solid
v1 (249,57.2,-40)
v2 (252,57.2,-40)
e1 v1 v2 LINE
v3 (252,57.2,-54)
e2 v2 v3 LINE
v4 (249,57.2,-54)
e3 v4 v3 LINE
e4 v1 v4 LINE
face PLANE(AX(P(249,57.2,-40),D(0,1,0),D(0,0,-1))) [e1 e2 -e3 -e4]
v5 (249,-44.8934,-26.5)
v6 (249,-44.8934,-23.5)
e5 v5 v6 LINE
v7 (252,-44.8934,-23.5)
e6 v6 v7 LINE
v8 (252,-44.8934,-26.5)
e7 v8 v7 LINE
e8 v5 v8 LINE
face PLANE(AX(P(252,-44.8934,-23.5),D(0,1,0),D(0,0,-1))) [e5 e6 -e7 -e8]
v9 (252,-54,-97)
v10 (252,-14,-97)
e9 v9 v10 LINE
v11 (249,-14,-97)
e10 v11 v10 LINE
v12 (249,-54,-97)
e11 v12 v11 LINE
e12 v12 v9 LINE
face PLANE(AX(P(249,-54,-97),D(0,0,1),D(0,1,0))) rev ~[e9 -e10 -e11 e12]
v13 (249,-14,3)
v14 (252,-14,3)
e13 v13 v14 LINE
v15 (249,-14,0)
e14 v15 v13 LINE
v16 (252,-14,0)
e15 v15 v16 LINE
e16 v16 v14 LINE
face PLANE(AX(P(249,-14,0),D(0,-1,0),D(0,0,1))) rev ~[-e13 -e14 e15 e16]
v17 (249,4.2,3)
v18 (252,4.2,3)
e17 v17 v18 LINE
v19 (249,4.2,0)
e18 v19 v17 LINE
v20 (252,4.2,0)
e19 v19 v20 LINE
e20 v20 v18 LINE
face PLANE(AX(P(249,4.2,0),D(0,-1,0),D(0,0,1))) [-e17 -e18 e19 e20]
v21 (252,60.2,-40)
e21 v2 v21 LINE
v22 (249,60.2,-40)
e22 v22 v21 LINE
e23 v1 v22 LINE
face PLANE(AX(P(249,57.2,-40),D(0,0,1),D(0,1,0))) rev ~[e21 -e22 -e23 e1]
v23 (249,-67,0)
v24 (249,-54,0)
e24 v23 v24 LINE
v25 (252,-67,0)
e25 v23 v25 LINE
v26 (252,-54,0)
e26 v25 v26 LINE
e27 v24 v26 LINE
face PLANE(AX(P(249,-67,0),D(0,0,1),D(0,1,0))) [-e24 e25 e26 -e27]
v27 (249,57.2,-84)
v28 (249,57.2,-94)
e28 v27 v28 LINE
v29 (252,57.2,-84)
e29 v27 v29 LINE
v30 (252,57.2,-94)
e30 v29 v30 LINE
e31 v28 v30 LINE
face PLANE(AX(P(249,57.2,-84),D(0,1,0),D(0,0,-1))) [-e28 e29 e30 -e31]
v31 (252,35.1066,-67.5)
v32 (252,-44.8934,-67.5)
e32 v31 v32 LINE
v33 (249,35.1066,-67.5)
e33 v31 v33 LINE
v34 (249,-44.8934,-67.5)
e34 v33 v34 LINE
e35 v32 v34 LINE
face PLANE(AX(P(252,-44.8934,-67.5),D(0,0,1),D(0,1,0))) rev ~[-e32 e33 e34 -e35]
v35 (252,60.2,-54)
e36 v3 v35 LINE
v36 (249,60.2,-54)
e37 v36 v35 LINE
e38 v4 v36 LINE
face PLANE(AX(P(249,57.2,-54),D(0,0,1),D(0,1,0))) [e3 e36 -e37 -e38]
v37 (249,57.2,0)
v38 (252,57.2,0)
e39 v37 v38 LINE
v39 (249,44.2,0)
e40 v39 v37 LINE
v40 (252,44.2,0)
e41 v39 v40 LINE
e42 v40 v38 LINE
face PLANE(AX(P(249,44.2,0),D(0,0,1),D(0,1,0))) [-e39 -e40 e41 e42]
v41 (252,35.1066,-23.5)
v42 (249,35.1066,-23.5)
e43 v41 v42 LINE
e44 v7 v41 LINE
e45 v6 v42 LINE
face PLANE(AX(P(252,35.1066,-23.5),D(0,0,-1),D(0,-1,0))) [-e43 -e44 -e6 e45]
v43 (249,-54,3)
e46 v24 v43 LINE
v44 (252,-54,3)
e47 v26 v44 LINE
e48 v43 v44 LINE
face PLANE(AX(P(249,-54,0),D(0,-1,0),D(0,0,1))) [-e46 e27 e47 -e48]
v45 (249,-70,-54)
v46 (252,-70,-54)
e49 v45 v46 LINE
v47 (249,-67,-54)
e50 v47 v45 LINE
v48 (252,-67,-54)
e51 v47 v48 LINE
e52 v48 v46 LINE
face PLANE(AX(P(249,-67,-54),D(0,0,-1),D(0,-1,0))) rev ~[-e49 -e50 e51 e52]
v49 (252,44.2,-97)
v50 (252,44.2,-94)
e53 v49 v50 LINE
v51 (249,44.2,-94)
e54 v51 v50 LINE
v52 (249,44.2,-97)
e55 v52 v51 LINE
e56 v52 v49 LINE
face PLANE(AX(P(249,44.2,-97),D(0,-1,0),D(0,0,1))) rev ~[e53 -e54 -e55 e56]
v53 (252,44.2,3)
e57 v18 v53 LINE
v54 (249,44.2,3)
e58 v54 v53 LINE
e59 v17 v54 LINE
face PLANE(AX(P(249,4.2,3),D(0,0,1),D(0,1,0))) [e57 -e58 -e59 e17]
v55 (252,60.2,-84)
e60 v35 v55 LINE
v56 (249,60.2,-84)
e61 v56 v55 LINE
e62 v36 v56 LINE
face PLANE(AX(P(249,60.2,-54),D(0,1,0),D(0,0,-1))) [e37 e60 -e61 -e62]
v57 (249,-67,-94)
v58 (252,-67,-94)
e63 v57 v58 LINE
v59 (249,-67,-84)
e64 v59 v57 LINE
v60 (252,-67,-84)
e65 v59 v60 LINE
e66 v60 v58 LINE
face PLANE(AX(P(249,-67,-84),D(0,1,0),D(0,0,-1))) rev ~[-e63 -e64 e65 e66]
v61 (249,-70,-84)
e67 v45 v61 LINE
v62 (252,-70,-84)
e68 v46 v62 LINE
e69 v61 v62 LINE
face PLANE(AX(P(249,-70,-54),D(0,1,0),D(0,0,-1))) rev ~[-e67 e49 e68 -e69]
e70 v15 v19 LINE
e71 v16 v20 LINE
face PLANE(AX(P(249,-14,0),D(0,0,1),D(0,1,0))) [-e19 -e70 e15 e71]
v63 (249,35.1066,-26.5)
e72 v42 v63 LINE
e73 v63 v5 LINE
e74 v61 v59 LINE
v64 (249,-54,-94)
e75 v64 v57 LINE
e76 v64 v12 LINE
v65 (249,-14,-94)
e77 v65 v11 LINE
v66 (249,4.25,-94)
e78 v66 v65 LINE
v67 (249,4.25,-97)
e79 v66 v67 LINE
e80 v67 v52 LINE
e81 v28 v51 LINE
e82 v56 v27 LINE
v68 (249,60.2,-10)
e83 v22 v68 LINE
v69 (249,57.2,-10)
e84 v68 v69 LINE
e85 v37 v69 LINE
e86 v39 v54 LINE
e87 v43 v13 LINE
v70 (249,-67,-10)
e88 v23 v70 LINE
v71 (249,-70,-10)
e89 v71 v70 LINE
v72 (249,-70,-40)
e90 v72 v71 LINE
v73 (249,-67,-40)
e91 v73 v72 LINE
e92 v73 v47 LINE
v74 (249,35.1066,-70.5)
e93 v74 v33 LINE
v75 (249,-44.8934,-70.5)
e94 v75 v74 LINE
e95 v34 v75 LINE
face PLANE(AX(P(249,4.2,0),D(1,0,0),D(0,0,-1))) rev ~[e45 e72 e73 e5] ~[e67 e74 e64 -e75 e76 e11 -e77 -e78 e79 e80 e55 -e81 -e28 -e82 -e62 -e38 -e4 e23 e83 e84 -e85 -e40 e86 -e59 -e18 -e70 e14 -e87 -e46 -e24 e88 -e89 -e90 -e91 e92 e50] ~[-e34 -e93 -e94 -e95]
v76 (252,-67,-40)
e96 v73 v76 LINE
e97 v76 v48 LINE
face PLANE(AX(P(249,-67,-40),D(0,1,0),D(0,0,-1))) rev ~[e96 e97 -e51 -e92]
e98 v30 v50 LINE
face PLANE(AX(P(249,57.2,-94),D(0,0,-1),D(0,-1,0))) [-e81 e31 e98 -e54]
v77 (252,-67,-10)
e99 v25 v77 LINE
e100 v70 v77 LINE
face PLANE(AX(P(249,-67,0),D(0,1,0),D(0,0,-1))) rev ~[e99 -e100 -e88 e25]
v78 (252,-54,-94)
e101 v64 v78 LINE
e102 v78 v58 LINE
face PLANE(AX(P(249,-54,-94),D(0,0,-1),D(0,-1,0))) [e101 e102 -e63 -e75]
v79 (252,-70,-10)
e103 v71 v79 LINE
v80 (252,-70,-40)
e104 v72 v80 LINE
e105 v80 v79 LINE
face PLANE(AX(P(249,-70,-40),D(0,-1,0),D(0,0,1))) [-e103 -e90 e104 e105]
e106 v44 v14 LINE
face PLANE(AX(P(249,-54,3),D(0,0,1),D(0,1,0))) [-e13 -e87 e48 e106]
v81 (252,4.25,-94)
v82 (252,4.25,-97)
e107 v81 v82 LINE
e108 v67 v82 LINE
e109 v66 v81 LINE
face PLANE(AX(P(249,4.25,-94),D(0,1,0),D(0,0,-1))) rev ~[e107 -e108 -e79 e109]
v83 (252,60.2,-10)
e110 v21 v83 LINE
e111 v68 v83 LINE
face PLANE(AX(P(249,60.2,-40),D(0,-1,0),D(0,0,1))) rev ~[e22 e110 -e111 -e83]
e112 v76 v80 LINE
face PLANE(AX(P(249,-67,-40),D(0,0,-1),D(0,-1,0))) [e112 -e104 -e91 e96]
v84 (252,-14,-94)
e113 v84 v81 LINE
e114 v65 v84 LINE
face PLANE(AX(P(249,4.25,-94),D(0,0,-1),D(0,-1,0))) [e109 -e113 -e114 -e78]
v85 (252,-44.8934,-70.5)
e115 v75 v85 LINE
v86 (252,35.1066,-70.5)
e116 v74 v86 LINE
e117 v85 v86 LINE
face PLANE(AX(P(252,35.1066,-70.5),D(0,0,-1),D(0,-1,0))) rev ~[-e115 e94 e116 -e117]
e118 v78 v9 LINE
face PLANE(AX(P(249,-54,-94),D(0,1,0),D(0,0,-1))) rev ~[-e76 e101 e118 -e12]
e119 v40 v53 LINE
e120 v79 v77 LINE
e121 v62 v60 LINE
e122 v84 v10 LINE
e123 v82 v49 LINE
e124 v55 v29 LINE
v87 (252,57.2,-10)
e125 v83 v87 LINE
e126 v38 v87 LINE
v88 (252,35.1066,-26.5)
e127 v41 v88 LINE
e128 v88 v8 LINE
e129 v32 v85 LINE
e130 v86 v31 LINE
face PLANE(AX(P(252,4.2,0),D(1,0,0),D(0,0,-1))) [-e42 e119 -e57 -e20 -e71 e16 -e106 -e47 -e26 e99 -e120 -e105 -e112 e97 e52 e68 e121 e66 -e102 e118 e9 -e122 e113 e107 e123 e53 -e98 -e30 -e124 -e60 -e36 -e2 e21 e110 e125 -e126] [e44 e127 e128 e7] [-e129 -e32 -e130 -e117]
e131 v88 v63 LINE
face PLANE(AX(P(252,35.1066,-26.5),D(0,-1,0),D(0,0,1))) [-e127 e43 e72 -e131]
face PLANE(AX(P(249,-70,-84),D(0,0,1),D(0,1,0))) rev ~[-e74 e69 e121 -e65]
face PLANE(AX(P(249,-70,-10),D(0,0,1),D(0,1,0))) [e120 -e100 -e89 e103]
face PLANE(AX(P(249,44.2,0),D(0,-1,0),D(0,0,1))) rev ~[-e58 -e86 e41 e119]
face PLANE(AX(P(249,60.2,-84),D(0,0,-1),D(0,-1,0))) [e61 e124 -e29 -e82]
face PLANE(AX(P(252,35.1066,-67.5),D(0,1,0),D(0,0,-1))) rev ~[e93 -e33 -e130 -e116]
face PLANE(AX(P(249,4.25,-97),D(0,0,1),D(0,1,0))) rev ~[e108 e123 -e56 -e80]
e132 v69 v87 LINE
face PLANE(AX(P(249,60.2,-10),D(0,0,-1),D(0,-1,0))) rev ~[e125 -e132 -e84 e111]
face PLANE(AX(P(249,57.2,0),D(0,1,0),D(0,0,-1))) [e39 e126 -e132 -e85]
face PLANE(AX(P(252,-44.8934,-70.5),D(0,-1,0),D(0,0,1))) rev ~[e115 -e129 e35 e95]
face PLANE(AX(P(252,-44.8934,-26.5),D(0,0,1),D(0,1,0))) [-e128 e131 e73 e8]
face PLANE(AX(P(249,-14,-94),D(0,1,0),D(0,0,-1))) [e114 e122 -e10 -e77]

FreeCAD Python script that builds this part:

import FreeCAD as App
import Part
import Sketcher

V = App.Vector
Q = App.Units.Quantity


def add_polygon(sketch, points):
    """Adds a closed chain of lines whose ends are joined by coincident constraints."""
    first, n = sketch.GeometryCount, len(points)
    for a, b in zip(points, points[1:] + points[:1]):
        sketch.addGeometry(Part.LineSegment(App.Vector(*a, 0), App.Vector(*b, 0)), False)
    for i in range(n):
        sketch.addConstraint(Sketcher.Constraint("Coincident", first + i, 2, first + (i + 1) % n, 1))

doc = App.newDocument("Part")
body = doc.addObject("PartDesign::Body", "Body")

# Sketch on YZ plane
sketch1 = doc.addObject("Sketcher::SketchObject", "Sketch")
body.addObject(sketch1)
sketch1.AttachmentSupport = (doc.YZ_Plane, [""])
sketch1.MapMode = "FlatFace"
sketch1.AttachmentOffset = App.Placement(V(0, 0, 249), App.Rotation())
add_polygon(sketch1, [(4.2, 0), (-14, 0), (-14, 3), (-54, 3), (-54, 0), (-67, 0), (-67, -10), (-70, -10), (-70, -40), (-67, -40), (-67, -54), (-70, -54), (-70, -84), (-67, -84), (-67, -94), (-54, -94), (-54, -97), (-14, -97), (-14, -94), (4.2, -94), (4.2, -97), (44.2, -97), (44.2, -94), (57.2, -94), (57.2, -84), (60.2, -84), (60.2, -54), (57.2, -54), (57.2, -40), (60.2, -40), (60.2, -10), (57.2, -10), (57.2, 0), (44.2, 0), (44.2, 3), (4.2, 3)])  # lines 0-35
sketch1.addConstraint([
    Sketcher.Constraint("Horizontal", 0),
    Sketcher.Constraint("Vertical", 1),
    Sketcher.Constraint("Horizontal", 2),
    Sketcher.Constraint("Vertical", 3),
    Sketcher.Constraint("Horizontal", 4),
    Sketcher.Constraint("Vertical", 5),
    Sketcher.Constraint("Horizontal", 6),
    Sketcher.Constraint("Vertical", 7),
    Sketcher.Constraint("Horizontal", 8),
    Sketcher.Constraint("Vertical", 9),
    Sketcher.Constraint("Horizontal", 10),
    Sketcher.Constraint("Vertical", 11),
    Sketcher.Constraint("Horizontal", 12),
    Sketcher.Constraint("Vertical", 13),
    Sketcher.Constraint("Horizontal", 14),
    Sketcher.Constraint("Vertical", 15),
    Sketcher.Constraint("Horizontal", 16),
    Sketcher.Constraint("Vertical", 17),
    Sketcher.Constraint("Horizontal", 18),
    Sketcher.Constraint("Vertical", 19),
    Sketcher.Constraint("Horizontal", 20),
    Sketcher.Constraint("Vertical", 21),
    Sketcher.Constraint("Horizontal", 22),
    Sketcher.Constraint("Vertical", 23),
    Sketcher.Constraint("Horizontal", 24),
    Sketcher.Constraint("Vertical", 25),
    Sketcher.Constraint("Horizontal", 26),
    Sketcher.Constraint("Vertical", 27),
    Sketcher.Constraint("Horizontal", 28),
    Sketcher.Constraint("Vertical", 29),
    Sketcher.Constraint("Horizontal", 30),
    Sketcher.Constraint("Vertical", 31),
    Sketcher.Constraint("Horizontal", 32),
    Sketcher.Constraint("Vertical", 33),
    Sketcher.Constraint("Horizontal", 34),
    Sketcher.Constraint("Vertical", 35),
    Sketcher.Constraint("PointOnObject", 0, 2, -1),
    Sketcher.Constraint("PointOnObject", 3, 2, -1),
    Sketcher.Constraint("PointOnObject", 31, 2, -1),
    Sketcher.Constraint("Horizontal", 14, 2, 17, 2),
    Sketcher.Constraint("Horizontal", 16, 2, 19, 2),
    Sketcher.Constraint("Horizontal", 18, 2, 21, 2),
    Sketcher.Constraint("Horizontal", 12, 2, 23, 2),
    Sketcher.Constraint("Horizontal", 10, 2, 25, 2),
    Sketcher.Constraint("Horizontal", 8, 2, 27, 2),
    Sketcher.Constraint("Horizontal", 6, 2, 29, 2),
    Sketcher.Constraint("Horizontal", 2, 2, 33, 2),
    Sketcher.Constraint("Vertical", 5, 2, 8, 2),
    Sketcher.Constraint("Vertical", 7, 2, 10, 2),
    Sketcher.Constraint("Vertical", 9, 2, 12, 2),
    Sketcher.Constraint("Vertical", 3, 2, 14, 2),
    Sketcher.Constraint("Vertical", 1, 2, 16, 2),
    Sketcher.Constraint("Vertical", 23, 2, 26, 2),
    Sketcher.Constraint("Vertical", 25, 2, 28, 2),
    Sketcher.Constraint("Vertical", 27, 2, 30, 2),
    Sketcher.Constraint("Vertical", 21, 2, 32, 2),
    Sketcher.Constraint("Equal", 14, 22),
    Sketcher.Constraint("Equal", 12, 24),
    Sketcher.Constraint("Equal", 16, 34),
    Sketcher.Constraint("Equal", 30, 1),
    Sketcher.Constraint("Equal", 7, 11),
    Sketcher.Constraint("Equal", 5, 13),
    Sketcher.Constraint("Equal", 3, 15),
    Sketcher.Constraint("DistanceX", 6, 2, 6, 1, Q("3 mm")),
    Sketcher.Constraint("DistanceY", 5, 2, 5, 1, Q("10 mm")),
    Sketcher.Constraint("DistanceY", 7, 2, 7, 1, Q("30 mm")),
    Sketcher.Constraint("DistanceY", 13, 2, -1, 1, Q("94 mm")),
    Sketcher.Constraint("DistanceX", 2, 2, 2, 1, Q("40 mm")),
    Sketcher.Constraint("DistanceX", 4, 2, 4, 1, Q("13 mm")),
    Sketcher.Constraint("DistanceX", 0, 2, 0, 1, Q("18.2 mm")),
    Sketcher.Constraint("DistanceX", 0, 2, -1, 1, Q("14 mm")),
    Sketcher.Constraint("DistanceX", 18, 1, 18, 2, Q("18.25 mm")),
])
pad1 = doc.addObject("PartDesign::Pad", "Pad")
body.addObject(pad1)
pad1.Profile = sketch1
pad1.Length = 3

# Sketch on YZ plane
sketch2 = doc.addObject("Sketcher::SketchObject", "Sketch001")
body.addObject(sketch2)
sketch2.AttachmentSupport = (doc.YZ_Plane, [""])
sketch2.MapMode = "FlatFace"
sketch2.AttachmentOffset = App.Placement(V(0, 0, 252), App.Rotation())
add_polygon(sketch2, [(35.1, -23.5), (-44.9, -23.5), (-44.9, -26.5), (35.1, -26.5)])  # lines 0-3
add_polygon(sketch2, [(-44.9, -67.5), (-44.9, -70.5), (35.1, -70.5), (35.1, -67.5)])  # lines 4-7
sketch2.addConstraint([
    Sketcher.Constraint("Horizontal", 0),
    Sketcher.Constraint("Vertical", 1),
    Sketcher.Constraint("Horizontal", 2),
    Sketcher.Constraint("Vertical", 3),
    Sketcher.Constraint("Vertical", 4),
    Sketcher.Constraint("Horizontal", 5),
    Sketcher.Constraint("Vertical", 6),
    Sketcher.Constraint("Horizontal", 7),
    Sketcher.Constraint("Vertical", 1, 2, 4, 2),
    Sketcher.Constraint("Vertical", 3, 2, 5, 2),
    Sketcher.Constraint("Equal", 3, 4),
    Sketcher.Constraint("DistanceX", 0, 2, 0, 1, Q("80 mm")),
    Sketcher.Constraint("DistanceY", 1, 2, 1, 1, Q("3 mm")),
    Sketcher.Constraint("DistanceY", 4, 2, 1, 2, Q("44 mm")),
    Sketcher.Constraint("DistanceY", 0, 2, -1, 1, Q("23.5 mm")),
    Sketcher.Constraint("DistanceX", 0, 2, -1, 1, Q("44.8934 mm")),
])
pocket1 = doc.addObject("PartDesign::Pocket", "Pocket")
body.addObject(pocket1)
pocket1.Profile = sketch2
pocket1.Length = 10
pocket1.Midplane = True

doc.recompute()
